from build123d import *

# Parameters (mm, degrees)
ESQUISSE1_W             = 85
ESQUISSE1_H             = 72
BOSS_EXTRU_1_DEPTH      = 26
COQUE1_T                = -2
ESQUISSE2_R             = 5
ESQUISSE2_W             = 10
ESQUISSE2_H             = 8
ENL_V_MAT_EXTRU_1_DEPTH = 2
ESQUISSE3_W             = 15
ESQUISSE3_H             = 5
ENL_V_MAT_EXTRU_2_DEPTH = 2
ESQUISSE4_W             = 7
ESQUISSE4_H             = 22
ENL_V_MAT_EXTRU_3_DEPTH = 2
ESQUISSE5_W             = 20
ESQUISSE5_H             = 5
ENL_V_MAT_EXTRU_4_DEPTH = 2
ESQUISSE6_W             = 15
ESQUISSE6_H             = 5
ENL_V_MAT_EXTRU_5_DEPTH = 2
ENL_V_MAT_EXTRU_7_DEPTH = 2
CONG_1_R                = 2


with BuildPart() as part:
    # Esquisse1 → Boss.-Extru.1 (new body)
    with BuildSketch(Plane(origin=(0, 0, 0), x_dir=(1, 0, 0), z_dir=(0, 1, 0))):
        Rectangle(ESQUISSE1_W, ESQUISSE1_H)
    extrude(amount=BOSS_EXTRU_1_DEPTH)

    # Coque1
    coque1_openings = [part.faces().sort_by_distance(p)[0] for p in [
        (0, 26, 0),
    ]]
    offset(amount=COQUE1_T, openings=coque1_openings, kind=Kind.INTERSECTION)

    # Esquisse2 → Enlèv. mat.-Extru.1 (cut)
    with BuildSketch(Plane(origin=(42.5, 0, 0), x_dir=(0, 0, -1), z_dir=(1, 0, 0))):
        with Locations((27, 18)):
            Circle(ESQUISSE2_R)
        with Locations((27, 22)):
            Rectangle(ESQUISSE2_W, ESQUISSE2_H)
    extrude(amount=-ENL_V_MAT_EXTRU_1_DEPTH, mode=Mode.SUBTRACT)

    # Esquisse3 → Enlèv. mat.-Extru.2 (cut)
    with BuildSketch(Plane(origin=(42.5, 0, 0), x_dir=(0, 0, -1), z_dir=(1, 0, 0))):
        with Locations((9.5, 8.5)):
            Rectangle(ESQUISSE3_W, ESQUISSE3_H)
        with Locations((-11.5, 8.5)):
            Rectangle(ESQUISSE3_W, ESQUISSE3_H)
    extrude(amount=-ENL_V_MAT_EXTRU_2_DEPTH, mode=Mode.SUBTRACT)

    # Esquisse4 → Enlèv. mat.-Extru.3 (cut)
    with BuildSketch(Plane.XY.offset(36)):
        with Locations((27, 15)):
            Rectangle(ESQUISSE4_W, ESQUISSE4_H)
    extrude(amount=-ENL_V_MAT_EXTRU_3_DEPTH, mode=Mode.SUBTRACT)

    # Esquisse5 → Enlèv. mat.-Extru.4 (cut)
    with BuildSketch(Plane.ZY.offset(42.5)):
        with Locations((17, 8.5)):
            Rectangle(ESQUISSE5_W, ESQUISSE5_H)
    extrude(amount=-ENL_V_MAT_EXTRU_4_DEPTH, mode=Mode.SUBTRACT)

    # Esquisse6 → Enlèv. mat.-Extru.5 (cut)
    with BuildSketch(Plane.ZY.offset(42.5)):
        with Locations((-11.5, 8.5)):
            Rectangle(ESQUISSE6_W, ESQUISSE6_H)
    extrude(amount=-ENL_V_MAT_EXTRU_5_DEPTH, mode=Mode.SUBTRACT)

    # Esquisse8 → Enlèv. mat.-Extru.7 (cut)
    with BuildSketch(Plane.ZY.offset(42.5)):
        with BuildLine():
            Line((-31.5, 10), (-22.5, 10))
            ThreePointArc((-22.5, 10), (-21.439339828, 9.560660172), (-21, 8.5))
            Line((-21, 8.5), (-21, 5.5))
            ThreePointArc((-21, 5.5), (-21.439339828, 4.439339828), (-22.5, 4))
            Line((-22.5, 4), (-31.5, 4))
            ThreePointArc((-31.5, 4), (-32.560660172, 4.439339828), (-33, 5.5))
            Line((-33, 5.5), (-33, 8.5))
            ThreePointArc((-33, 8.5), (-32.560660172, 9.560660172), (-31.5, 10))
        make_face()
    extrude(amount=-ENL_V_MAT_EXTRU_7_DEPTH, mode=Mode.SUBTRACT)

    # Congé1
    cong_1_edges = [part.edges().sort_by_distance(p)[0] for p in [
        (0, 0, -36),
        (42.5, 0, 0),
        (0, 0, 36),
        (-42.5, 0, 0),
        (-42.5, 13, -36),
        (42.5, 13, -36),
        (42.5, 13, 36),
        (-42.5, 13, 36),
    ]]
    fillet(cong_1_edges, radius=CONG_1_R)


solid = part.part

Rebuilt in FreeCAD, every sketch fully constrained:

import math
import FreeCAD as App
import Part
import Sketcher


def edges_at(feature, points):
    """Names of the edges that pass closest to the given points."""
    edges = feature.Shape.Edges
    near = lambda p: min(range(len(edges)), key=lambda i: edges[i].distToShape(Part.Vertex(*p))[0])
    return sorted({f"Edge{near(p) + 1}" for p in points})


def faces_at(feature, points):
    """Names of the faces that lie closest to the given points."""
    faces = feature.Shape.Faces
    near = lambda p: min(range(len(faces)), key=lambda i: faces[i].distToShape(Part.Vertex(*p))[0])
    return sorted({f"Face{near(p) + 1}" for p in points})


def add_polygon(sketch, points):
    """Adds a closed chain of lines whose ends are joined by coincident constraints."""
    first, n = sketch.GeometryCount, len(points)
    for a, b in zip(points, points[1:] + points[:1]):
        sketch.addGeometry(Part.LineSegment(App.Vector(*a, 0), App.Vector(*b, 0)), False)
    for i in range(n):
        sketch.addConstraint(Sketcher.Constraint("Coincident", first + i, 2, first + (i + 1) % n, 1))

doc = App.newDocument("Part")
body = doc.addObject("PartDesign::Body", "Body")

# Sketch on XZ plane
sketch1 = doc.addObject("Sketcher::SketchObject", "Sketch")
body.addObject(sketch1)
sketch1.AttachmentSupport = (doc.XZ_Plane, [""])
sketch1.MapMode = "FlatFace"
add_polygon(sketch1, [(-42, -36), (-42, 36), (42, 36), (42, -36)])  # lines 0-3
sketch1.addConstraint([
    Sketcher.Constraint("Vertical", 0),
    Sketcher.Constraint("Horizontal", 1),
    Sketcher.Constraint("Vertical", 2),
    Sketcher.Constraint("Horizontal", 3),
    Sketcher.Constraint("Symmetric", 0, 2, 2, 2, -1, 1),
    Sketcher.Constraint("DistanceX", 1, 1, 1, 2, 85.0),
    Sketcher.Constraint("DistanceY", 0, 1, 0, 2, 72.0),
])
pad1 = doc.addObject("PartDesign::Pad", "Pad")
body.addObject(pad1)
pad1.Profile = sketch1
pad1.Length = 26
pad1.Reversed = True
doc.recompute()

thickness = doc.addObject("PartDesign::Thickness", "Thickness")
body.addObject(thickness)
thickness.Base = (pad1, faces_at(pad1, [(0, 26, 0)]))
thickness.Value = 2
thickness.Reversed = True
thickness.Join = "Intersection"

# Sketch on YZ plane
sketch2 = doc.addObject("Sketcher::SketchObject", "Sketch001")
body.addObject(sketch2)
sketch2.AttachmentSupport = (doc.YZ_Plane, [""])
sketch2.MapMode = "FlatFace"
sketch2.AttachmentOffset = App.Placement(App.Vector(0, 0, 42.5), App.Rotation())
sketch2.addGeometry([
    Part.ArcOfCircle(Part.Circle(App.Vector(18, -27, 0), App.Vector(0, 0, 1), 5), math.radians(90), math.radians(270)),
    Part.LineSegment(App.Vector(18, -32, 0), App.Vector(26, -32, 0)),
    Part.LineSegment(App.Vector(26, -32, 0), App.Vector(26, -22, 0)),
    Part.LineSegment(App.Vector(26, -22, 0), App.Vector(18, -22, 0)),
], False)
sketch2.addConstraint([
    Sketcher.Constraint("Tangent", 0, 2, 1, 1),
    Sketcher.Constraint("Coincident", 1, 2, 2, 1),
    Sketcher.Constraint("Coincident", 2, 2, 3, 1),
    Sketcher.Constraint("Tangent", 3, 2, 0, 1),
    Sketcher.Constraint("Horizontal", 1),
    Sketcher.Constraint("Vertical", 2),
    Sketcher.Constraint("Horizontal", 3),
    Sketcher.Constraint("Radius", 0, 5.0),
    Sketcher.Constraint("DistanceX", 1, 1, 1, 2, 8.0),
    Sketcher.Constraint("DistanceX", -1, 1, 0, 3, 18.0),
    Sketcher.Constraint("DistanceY", 0, 3, -1, 1, 27.0),
])
pocket1 = doc.addObject("PartDesign::Pocket", "Pocket")
body.addObject(pocket1)
pocket1.Profile = sketch2
pocket1.Length = 2

# Sketch on YZ plane
sketch3 = doc.addObject("Sketcher::SketchObject", "Sketch002")
body.addObject(sketch3)
sketch3.AttachmentSupport = (doc.YZ_Plane, [""])
sketch3.MapMode = "FlatFace"
sketch3.AttachmentOffset = App.Placement(App.Vector(0, 0, 42.5), App.Rotation())
add_polygon(sketch3, [(11, -2), (6, -2), (6, -17), (11, -17)])  # lines 0-3
add_polygon(sketch3, [(11, 19), (6, 19), (6, 4), (11, 4)])  # lines 4-7
sketch3.addConstraint([
    Sketcher.Constraint("Horizontal", 0),
    Sketcher.Constraint("Vertical", 1),
    Sketcher.Constraint("Horizontal", 2),
    Sketcher.Constraint("Vertical", 3),
    Sketcher.Constraint("Horizontal", 4),
    Sketcher.Constraint("Vertical", 5),
    Sketcher.Constraint("Horizontal", 6),
    Sketcher.Constraint("Vertical", 7),
    Sketcher.Constraint("Vertical", 1, 2, 4, 2),
    Sketcher.Constraint("Vertical", 3, 2, 6, 2),
    Sketcher.Constraint("Equal", 3, 5),
    Sketcher.Constraint("DistanceX", 0, 2, 0, 1, 5.0),
    Sketcher.Constraint("DistanceY", 1, 2, 1, 1, 15.0),
    Sketcher.Constraint("DistanceX", -1, 1, 0, 2, 6.0),
    Sketcher.Constraint("DistanceY", 0, 2, -1, 1, 2.0),
    Sketcher.Constraint("DistanceY", -1, 1, 4, 2, 19.0),
])
pocket2 = doc.addObject("PartDesign::Pocket", "Pocket001")
body.addObject(pocket2)
pocket2.Profile = sketch3
pocket2.Length = 2

# Sketch on XY plane
sketch4 = doc.addObject("Sketcher::SketchObject", "Sketch003")
body.addObject(sketch4)
sketch4.AttachmentSupport = (doc.XY_Plane, [""])
sketch4.MapMode = "FlatFace"
sketch4.AttachmentOffset = App.Placement(App.Vector(0, 0, 36), App.Rotation())
add_polygon(sketch4, [(24, 26), (24, 4), (30, 4), (30, 26)])  # lines 0-3
sketch4.addConstraint([
    Sketcher.Constraint("Vertical", 0),
    Sketcher.Constraint("Horizontal", 1),
    Sketcher.Constraint("Vertical", 2),
    Sketcher.Constraint("Horizontal", 3),
    Sketcher.Constraint("DistanceX", 1, 1, 1, 2, 7.0),
    Sketcher.Constraint("DistanceY", 0, 2, 0, 1, 22.0),
    Sketcher.Constraint("DistanceY", -1, 1, 0, 2, 4.0),
    Sketcher.Constraint("DistanceX", -1, 1, 0, 2, 23.5),
])
pocket3 = doc.addObject("PartDesign::Pocket", "Pocket002")
body.addObject(pocket3)
pocket3.Profile = sketch4
pocket3.Length = 2

# Sketch on YZ plane
sketch5 = doc.addObject("Sketcher::SketchObject", "Sketch004")
body.addObject(sketch5)
sketch5.AttachmentSupport = (doc.YZ_Plane, [""])
sketch5.MapMode = "FlatFace"
sketch5.AttachmentOffset = App.Placement(App.Vector(0, 0, -42.5), App.Rotation())
add_polygon(sketch5, [(11, 7), (6, 7), (6, 27), (11, 27)])  # lines 0-3
sketch5.addConstraint([
    Sketcher.Constraint("Horizontal", 0),
    Sketcher.Constraint("Vertical", 1),
    Sketcher.Constraint("Horizontal", 2),
    Sketcher.Constraint("Vertical", 3),
    Sketcher.Constraint("DistanceX", 0, 2, 0, 1, 5.0),
    Sketcher.Constraint("DistanceY", 1, 1, 1, 2, 20.0),
    Sketcher.Constraint("DistanceX", -1, 1, 0, 2, 6.0),
    Sketcher.Constraint("DistanceY", -1, 1, 0, 2, 7.0),
])
pocket4 = doc.addObject("PartDesign::Pocket", "Pocket003")
body.addObject(pocket4)
pocket4.Profile = sketch5
pocket4.Length = 2
pocket4.Reversed = True

# Sketch on YZ plane
sketch6 = doc.addObject("Sketcher::SketchObject", "Sketch005")
body.addObject(sketch6)
sketch6.AttachmentSupport = (doc.YZ_Plane, [""])
sketch6.MapMode = "FlatFace"
sketch6.AttachmentOffset = App.Placement(App.Vector(0, 0, -42.5), App.Rotation())
add_polygon(sketch6, [(11, -19), (6, -19), (6, -4), (11, -4)])  # lines 0-3
sketch6.addConstraint([
    Sketcher.Constraint("Horizontal", 0),
    Sketcher.Constraint("Vertical", 1),
    Sketcher.Constraint("Horizontal", 2),
    Sketcher.Constraint("Vertical", 3),
    Sketcher.Constraint("DistanceX", 0, 2, 0, 1, 5.0),
    Sketcher.Constraint("DistanceY", 1, 1, 1, 2, 15.0),
    Sketcher.Constraint("DistanceX", -1, 1, 0, 2, 6.0),
    Sketcher.Constraint("DistanceY", 0, 2, -1, 1, 19.0),
])
pocket5 = doc.addObject("PartDesign::Pocket", "Pocket004")
body.addObject(pocket5)
pocket5.Profile = sketch6
pocket5.Length = 2
pocket5.Reversed = True

# Sketch on YZ plane
sketch7 = doc.addObject("Sketcher::SketchObject", "Sketch006")
body.addObject(sketch7)
sketch7.AttachmentSupport = (doc.YZ_Plane, [""])
sketch7.MapMode = "FlatFace"
sketch7.AttachmentOffset = App.Placement(App.Vector(0, 0, -42.5), App.Rotation())
sketch7.addGeometry([
    Part.LineSegment(App.Vector(10, -22.5, 0), App.Vector(10, -31.5, 0)),  # 0
    Part.ArcOfCircle(Part.Circle(App.Vector(8.5, -31.5, 0), App.Vector(0, 0, 1), 1.5), math.radians(-90), math.radians(0)),  # 1
    Part.LineSegment(App.Vector(8.5, -33, 0), App.Vector(5.5, -33, 0)),  # 2
    Part.ArcOfCircle(Part.Circle(App.Vector(5.5, -31.5, 0), App.Vector(0, 0, 1), 1.5), math.radians(180), math.radians(270)),  # 3
    Part.LineSegment(App.Vector(4, -31.5, 0), App.Vector(4, -22.5, 0)),  # 4
    Part.ArcOfCircle(Part.Circle(App.Vector(5.5, -22.5, 0), App.Vector(0, 0, 1), 1.5), math.radians(90), math.radians(180)),  # 5
    Part.LineSegment(App.Vector(5.5, -21, 0), App.Vector(8.5, -21, 0)),  # 6
    Part.ArcOfCircle(Part.Circle(App.Vector(8.5, -22.5, 0), App.Vector(0, 0, 1), 1.5), math.radians(0), math.radians(90)),  # 7
], False)
sketch7.addConstraint([
    Sketcher.Constraint("Tangent", 0, 2, 1, 2),
    Sketcher.Constraint("Tangent", 1, 1, 2, 1),
    Sketcher.Constraint("Tangent", 2, 2, 3, 2),
    Sketcher.Constraint("Tangent", 3, 1, 4, 1),
    Sketcher.Constraint("Tangent", 4, 2, 5, 2),
    Sketcher.Constraint("Tangent", 5, 1, 6, 1),
    Sketcher.Constraint("Tangent", 6, 2, 7, 2),
    Sketcher.Constraint("Tangent", 7, 1, 0, 1),
    Sketcher.Constraint("Vertical", 0),
    Sketcher.Constraint("Horizontal", 2),
    Sketcher.Constraint("Vertical", 4),
    Sketcher.Constraint("Horizontal", 6),
    Sketcher.Constraint("Equal", 1, 3),
    Sketcher.Constraint("Equal", 3, 5),
    Sketcher.Constraint("Equal", 5, 7),
    Sketcher.Constraint("Radius", 1, 1.5),
    Sketcher.Constraint("DistanceX", 2, 2, 2, 1, 3.0),
    Sketcher.Constraint("DistanceY", 0, 2, 0, 1, 9.0),
    Sketcher.Constraint("DistanceX", -1, 1, 0, 2, 10.0),
    Sketcher.Constraint("DistanceY", 1, 1, -1, 1, 33.0),
])
pocket6 = doc.addObject("PartDesign::Pocket", "Pocket005")
body.addObject(pocket6)
pocket6.Profile = sketch7
pocket6.Length = 2
pocket6.Reversed = True
doc.recompute()

fillet = doc.addObject("PartDesign::Fillet", "Fillet")
body.addObject(fillet)
fillet.Base = (pocket6, edges_at(pocket6, [
    (0, 0, -36),
    (42.5, 0, 0),
    (0, 0, 36),
    (-42.5, 0, 0),
    (-42.5, 13, -36),
    (42.5, 13, -36),
    (42.5, 13, 36),
    (-42.5, 13, 36),
]))
fillet.Radius = 2

doc.recompute()
